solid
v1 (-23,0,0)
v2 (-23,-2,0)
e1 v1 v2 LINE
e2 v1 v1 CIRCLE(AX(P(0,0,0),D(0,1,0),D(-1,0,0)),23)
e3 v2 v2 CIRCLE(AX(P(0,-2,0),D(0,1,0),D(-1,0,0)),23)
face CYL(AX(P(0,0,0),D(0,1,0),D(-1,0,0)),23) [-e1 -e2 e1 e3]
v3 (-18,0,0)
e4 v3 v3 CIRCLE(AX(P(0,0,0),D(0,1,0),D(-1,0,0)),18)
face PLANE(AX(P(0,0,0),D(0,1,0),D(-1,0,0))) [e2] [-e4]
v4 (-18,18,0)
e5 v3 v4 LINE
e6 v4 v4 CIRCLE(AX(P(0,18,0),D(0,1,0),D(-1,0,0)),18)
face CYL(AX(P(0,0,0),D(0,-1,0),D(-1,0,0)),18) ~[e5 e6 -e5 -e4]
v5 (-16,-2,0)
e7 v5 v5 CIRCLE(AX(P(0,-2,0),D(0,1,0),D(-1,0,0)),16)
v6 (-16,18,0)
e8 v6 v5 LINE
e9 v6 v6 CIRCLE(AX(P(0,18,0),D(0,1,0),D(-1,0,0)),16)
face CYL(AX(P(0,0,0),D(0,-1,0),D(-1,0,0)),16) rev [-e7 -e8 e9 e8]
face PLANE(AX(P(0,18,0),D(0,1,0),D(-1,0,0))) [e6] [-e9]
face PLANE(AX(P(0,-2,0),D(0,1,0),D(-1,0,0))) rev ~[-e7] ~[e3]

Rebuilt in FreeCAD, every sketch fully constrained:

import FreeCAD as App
import Part
import Sketcher
from FreeCAD import Vector

doc = App.newDocument("Part")
body = doc.addObject("PartDesign::Body", "Body")

# Sketch on XZ plane
sketch1 = body.newObject("Sketcher::SketchObject", "Sketch")
sketch1.AttachmentSupport = (doc.getObject("XZ_Plane"), [""])
sketch1.MapMode = "FlatFace"
sketch1.addGeometry(Part.Circle(Vector(0, 0, 0), Vector(0, 0, 1), 18), False)
sketch1.addGeometry(Part.Circle(Vector(0, 0, 0), Vector(0, 0, 1), 16), False)
sketch1.addConstraint(Sketcher.Constraint("Coincident", 0, 3, -1, 1))
sketch1.addConstraint(Sketcher.Constraint("Coincident", 1, 3, -1, 1))
sketch1.addConstraint(Sketcher.Constraint("Diameter", 0, 36.0))
sketch1.addConstraint(Sketcher.Constraint("Diameter", 1, 32.0))
pad1 = body.newObject("PartDesign::Pad", "Pad")
pad1.Profile = sketch1
pad1.Length = 18
pad1.Reversed = True

# Sketch on XZ plane
sketch2 = body.newObject("Sketcher::SketchObject", "Sketch001")
sketch2.AttachmentSupport = (doc.getObject("XZ_Plane"), [""])
sketch2.MapMode = "FlatFace"
sketch2.addGeometry(Part.Circle(Vector(0, 0, 0), Vector(0, 0, 1), 23), False)
sketch2.addGeometry(Part.Circle(Vector(0, 0, 0), Vector(0, 0, 1), 16), False)
sketch2.addConstraint(Sketcher.Constraint("Coincident", 0, 3, -1, 1))
sketch2.addConstraint(Sketcher.Constraint("Coincident", 1, 3, -1, 1))
sketch2.addConstraint(Sketcher.Constraint("Diameter", 0, 46.0))
sketch2.addConstraint(Sketcher.Constraint("Diameter", 1, 32.0))
pad2 = body.newObject("PartDesign::Pad", "Pad001")
pad2.Profile = sketch2
pad2.Length = 2

doc.recompute()
